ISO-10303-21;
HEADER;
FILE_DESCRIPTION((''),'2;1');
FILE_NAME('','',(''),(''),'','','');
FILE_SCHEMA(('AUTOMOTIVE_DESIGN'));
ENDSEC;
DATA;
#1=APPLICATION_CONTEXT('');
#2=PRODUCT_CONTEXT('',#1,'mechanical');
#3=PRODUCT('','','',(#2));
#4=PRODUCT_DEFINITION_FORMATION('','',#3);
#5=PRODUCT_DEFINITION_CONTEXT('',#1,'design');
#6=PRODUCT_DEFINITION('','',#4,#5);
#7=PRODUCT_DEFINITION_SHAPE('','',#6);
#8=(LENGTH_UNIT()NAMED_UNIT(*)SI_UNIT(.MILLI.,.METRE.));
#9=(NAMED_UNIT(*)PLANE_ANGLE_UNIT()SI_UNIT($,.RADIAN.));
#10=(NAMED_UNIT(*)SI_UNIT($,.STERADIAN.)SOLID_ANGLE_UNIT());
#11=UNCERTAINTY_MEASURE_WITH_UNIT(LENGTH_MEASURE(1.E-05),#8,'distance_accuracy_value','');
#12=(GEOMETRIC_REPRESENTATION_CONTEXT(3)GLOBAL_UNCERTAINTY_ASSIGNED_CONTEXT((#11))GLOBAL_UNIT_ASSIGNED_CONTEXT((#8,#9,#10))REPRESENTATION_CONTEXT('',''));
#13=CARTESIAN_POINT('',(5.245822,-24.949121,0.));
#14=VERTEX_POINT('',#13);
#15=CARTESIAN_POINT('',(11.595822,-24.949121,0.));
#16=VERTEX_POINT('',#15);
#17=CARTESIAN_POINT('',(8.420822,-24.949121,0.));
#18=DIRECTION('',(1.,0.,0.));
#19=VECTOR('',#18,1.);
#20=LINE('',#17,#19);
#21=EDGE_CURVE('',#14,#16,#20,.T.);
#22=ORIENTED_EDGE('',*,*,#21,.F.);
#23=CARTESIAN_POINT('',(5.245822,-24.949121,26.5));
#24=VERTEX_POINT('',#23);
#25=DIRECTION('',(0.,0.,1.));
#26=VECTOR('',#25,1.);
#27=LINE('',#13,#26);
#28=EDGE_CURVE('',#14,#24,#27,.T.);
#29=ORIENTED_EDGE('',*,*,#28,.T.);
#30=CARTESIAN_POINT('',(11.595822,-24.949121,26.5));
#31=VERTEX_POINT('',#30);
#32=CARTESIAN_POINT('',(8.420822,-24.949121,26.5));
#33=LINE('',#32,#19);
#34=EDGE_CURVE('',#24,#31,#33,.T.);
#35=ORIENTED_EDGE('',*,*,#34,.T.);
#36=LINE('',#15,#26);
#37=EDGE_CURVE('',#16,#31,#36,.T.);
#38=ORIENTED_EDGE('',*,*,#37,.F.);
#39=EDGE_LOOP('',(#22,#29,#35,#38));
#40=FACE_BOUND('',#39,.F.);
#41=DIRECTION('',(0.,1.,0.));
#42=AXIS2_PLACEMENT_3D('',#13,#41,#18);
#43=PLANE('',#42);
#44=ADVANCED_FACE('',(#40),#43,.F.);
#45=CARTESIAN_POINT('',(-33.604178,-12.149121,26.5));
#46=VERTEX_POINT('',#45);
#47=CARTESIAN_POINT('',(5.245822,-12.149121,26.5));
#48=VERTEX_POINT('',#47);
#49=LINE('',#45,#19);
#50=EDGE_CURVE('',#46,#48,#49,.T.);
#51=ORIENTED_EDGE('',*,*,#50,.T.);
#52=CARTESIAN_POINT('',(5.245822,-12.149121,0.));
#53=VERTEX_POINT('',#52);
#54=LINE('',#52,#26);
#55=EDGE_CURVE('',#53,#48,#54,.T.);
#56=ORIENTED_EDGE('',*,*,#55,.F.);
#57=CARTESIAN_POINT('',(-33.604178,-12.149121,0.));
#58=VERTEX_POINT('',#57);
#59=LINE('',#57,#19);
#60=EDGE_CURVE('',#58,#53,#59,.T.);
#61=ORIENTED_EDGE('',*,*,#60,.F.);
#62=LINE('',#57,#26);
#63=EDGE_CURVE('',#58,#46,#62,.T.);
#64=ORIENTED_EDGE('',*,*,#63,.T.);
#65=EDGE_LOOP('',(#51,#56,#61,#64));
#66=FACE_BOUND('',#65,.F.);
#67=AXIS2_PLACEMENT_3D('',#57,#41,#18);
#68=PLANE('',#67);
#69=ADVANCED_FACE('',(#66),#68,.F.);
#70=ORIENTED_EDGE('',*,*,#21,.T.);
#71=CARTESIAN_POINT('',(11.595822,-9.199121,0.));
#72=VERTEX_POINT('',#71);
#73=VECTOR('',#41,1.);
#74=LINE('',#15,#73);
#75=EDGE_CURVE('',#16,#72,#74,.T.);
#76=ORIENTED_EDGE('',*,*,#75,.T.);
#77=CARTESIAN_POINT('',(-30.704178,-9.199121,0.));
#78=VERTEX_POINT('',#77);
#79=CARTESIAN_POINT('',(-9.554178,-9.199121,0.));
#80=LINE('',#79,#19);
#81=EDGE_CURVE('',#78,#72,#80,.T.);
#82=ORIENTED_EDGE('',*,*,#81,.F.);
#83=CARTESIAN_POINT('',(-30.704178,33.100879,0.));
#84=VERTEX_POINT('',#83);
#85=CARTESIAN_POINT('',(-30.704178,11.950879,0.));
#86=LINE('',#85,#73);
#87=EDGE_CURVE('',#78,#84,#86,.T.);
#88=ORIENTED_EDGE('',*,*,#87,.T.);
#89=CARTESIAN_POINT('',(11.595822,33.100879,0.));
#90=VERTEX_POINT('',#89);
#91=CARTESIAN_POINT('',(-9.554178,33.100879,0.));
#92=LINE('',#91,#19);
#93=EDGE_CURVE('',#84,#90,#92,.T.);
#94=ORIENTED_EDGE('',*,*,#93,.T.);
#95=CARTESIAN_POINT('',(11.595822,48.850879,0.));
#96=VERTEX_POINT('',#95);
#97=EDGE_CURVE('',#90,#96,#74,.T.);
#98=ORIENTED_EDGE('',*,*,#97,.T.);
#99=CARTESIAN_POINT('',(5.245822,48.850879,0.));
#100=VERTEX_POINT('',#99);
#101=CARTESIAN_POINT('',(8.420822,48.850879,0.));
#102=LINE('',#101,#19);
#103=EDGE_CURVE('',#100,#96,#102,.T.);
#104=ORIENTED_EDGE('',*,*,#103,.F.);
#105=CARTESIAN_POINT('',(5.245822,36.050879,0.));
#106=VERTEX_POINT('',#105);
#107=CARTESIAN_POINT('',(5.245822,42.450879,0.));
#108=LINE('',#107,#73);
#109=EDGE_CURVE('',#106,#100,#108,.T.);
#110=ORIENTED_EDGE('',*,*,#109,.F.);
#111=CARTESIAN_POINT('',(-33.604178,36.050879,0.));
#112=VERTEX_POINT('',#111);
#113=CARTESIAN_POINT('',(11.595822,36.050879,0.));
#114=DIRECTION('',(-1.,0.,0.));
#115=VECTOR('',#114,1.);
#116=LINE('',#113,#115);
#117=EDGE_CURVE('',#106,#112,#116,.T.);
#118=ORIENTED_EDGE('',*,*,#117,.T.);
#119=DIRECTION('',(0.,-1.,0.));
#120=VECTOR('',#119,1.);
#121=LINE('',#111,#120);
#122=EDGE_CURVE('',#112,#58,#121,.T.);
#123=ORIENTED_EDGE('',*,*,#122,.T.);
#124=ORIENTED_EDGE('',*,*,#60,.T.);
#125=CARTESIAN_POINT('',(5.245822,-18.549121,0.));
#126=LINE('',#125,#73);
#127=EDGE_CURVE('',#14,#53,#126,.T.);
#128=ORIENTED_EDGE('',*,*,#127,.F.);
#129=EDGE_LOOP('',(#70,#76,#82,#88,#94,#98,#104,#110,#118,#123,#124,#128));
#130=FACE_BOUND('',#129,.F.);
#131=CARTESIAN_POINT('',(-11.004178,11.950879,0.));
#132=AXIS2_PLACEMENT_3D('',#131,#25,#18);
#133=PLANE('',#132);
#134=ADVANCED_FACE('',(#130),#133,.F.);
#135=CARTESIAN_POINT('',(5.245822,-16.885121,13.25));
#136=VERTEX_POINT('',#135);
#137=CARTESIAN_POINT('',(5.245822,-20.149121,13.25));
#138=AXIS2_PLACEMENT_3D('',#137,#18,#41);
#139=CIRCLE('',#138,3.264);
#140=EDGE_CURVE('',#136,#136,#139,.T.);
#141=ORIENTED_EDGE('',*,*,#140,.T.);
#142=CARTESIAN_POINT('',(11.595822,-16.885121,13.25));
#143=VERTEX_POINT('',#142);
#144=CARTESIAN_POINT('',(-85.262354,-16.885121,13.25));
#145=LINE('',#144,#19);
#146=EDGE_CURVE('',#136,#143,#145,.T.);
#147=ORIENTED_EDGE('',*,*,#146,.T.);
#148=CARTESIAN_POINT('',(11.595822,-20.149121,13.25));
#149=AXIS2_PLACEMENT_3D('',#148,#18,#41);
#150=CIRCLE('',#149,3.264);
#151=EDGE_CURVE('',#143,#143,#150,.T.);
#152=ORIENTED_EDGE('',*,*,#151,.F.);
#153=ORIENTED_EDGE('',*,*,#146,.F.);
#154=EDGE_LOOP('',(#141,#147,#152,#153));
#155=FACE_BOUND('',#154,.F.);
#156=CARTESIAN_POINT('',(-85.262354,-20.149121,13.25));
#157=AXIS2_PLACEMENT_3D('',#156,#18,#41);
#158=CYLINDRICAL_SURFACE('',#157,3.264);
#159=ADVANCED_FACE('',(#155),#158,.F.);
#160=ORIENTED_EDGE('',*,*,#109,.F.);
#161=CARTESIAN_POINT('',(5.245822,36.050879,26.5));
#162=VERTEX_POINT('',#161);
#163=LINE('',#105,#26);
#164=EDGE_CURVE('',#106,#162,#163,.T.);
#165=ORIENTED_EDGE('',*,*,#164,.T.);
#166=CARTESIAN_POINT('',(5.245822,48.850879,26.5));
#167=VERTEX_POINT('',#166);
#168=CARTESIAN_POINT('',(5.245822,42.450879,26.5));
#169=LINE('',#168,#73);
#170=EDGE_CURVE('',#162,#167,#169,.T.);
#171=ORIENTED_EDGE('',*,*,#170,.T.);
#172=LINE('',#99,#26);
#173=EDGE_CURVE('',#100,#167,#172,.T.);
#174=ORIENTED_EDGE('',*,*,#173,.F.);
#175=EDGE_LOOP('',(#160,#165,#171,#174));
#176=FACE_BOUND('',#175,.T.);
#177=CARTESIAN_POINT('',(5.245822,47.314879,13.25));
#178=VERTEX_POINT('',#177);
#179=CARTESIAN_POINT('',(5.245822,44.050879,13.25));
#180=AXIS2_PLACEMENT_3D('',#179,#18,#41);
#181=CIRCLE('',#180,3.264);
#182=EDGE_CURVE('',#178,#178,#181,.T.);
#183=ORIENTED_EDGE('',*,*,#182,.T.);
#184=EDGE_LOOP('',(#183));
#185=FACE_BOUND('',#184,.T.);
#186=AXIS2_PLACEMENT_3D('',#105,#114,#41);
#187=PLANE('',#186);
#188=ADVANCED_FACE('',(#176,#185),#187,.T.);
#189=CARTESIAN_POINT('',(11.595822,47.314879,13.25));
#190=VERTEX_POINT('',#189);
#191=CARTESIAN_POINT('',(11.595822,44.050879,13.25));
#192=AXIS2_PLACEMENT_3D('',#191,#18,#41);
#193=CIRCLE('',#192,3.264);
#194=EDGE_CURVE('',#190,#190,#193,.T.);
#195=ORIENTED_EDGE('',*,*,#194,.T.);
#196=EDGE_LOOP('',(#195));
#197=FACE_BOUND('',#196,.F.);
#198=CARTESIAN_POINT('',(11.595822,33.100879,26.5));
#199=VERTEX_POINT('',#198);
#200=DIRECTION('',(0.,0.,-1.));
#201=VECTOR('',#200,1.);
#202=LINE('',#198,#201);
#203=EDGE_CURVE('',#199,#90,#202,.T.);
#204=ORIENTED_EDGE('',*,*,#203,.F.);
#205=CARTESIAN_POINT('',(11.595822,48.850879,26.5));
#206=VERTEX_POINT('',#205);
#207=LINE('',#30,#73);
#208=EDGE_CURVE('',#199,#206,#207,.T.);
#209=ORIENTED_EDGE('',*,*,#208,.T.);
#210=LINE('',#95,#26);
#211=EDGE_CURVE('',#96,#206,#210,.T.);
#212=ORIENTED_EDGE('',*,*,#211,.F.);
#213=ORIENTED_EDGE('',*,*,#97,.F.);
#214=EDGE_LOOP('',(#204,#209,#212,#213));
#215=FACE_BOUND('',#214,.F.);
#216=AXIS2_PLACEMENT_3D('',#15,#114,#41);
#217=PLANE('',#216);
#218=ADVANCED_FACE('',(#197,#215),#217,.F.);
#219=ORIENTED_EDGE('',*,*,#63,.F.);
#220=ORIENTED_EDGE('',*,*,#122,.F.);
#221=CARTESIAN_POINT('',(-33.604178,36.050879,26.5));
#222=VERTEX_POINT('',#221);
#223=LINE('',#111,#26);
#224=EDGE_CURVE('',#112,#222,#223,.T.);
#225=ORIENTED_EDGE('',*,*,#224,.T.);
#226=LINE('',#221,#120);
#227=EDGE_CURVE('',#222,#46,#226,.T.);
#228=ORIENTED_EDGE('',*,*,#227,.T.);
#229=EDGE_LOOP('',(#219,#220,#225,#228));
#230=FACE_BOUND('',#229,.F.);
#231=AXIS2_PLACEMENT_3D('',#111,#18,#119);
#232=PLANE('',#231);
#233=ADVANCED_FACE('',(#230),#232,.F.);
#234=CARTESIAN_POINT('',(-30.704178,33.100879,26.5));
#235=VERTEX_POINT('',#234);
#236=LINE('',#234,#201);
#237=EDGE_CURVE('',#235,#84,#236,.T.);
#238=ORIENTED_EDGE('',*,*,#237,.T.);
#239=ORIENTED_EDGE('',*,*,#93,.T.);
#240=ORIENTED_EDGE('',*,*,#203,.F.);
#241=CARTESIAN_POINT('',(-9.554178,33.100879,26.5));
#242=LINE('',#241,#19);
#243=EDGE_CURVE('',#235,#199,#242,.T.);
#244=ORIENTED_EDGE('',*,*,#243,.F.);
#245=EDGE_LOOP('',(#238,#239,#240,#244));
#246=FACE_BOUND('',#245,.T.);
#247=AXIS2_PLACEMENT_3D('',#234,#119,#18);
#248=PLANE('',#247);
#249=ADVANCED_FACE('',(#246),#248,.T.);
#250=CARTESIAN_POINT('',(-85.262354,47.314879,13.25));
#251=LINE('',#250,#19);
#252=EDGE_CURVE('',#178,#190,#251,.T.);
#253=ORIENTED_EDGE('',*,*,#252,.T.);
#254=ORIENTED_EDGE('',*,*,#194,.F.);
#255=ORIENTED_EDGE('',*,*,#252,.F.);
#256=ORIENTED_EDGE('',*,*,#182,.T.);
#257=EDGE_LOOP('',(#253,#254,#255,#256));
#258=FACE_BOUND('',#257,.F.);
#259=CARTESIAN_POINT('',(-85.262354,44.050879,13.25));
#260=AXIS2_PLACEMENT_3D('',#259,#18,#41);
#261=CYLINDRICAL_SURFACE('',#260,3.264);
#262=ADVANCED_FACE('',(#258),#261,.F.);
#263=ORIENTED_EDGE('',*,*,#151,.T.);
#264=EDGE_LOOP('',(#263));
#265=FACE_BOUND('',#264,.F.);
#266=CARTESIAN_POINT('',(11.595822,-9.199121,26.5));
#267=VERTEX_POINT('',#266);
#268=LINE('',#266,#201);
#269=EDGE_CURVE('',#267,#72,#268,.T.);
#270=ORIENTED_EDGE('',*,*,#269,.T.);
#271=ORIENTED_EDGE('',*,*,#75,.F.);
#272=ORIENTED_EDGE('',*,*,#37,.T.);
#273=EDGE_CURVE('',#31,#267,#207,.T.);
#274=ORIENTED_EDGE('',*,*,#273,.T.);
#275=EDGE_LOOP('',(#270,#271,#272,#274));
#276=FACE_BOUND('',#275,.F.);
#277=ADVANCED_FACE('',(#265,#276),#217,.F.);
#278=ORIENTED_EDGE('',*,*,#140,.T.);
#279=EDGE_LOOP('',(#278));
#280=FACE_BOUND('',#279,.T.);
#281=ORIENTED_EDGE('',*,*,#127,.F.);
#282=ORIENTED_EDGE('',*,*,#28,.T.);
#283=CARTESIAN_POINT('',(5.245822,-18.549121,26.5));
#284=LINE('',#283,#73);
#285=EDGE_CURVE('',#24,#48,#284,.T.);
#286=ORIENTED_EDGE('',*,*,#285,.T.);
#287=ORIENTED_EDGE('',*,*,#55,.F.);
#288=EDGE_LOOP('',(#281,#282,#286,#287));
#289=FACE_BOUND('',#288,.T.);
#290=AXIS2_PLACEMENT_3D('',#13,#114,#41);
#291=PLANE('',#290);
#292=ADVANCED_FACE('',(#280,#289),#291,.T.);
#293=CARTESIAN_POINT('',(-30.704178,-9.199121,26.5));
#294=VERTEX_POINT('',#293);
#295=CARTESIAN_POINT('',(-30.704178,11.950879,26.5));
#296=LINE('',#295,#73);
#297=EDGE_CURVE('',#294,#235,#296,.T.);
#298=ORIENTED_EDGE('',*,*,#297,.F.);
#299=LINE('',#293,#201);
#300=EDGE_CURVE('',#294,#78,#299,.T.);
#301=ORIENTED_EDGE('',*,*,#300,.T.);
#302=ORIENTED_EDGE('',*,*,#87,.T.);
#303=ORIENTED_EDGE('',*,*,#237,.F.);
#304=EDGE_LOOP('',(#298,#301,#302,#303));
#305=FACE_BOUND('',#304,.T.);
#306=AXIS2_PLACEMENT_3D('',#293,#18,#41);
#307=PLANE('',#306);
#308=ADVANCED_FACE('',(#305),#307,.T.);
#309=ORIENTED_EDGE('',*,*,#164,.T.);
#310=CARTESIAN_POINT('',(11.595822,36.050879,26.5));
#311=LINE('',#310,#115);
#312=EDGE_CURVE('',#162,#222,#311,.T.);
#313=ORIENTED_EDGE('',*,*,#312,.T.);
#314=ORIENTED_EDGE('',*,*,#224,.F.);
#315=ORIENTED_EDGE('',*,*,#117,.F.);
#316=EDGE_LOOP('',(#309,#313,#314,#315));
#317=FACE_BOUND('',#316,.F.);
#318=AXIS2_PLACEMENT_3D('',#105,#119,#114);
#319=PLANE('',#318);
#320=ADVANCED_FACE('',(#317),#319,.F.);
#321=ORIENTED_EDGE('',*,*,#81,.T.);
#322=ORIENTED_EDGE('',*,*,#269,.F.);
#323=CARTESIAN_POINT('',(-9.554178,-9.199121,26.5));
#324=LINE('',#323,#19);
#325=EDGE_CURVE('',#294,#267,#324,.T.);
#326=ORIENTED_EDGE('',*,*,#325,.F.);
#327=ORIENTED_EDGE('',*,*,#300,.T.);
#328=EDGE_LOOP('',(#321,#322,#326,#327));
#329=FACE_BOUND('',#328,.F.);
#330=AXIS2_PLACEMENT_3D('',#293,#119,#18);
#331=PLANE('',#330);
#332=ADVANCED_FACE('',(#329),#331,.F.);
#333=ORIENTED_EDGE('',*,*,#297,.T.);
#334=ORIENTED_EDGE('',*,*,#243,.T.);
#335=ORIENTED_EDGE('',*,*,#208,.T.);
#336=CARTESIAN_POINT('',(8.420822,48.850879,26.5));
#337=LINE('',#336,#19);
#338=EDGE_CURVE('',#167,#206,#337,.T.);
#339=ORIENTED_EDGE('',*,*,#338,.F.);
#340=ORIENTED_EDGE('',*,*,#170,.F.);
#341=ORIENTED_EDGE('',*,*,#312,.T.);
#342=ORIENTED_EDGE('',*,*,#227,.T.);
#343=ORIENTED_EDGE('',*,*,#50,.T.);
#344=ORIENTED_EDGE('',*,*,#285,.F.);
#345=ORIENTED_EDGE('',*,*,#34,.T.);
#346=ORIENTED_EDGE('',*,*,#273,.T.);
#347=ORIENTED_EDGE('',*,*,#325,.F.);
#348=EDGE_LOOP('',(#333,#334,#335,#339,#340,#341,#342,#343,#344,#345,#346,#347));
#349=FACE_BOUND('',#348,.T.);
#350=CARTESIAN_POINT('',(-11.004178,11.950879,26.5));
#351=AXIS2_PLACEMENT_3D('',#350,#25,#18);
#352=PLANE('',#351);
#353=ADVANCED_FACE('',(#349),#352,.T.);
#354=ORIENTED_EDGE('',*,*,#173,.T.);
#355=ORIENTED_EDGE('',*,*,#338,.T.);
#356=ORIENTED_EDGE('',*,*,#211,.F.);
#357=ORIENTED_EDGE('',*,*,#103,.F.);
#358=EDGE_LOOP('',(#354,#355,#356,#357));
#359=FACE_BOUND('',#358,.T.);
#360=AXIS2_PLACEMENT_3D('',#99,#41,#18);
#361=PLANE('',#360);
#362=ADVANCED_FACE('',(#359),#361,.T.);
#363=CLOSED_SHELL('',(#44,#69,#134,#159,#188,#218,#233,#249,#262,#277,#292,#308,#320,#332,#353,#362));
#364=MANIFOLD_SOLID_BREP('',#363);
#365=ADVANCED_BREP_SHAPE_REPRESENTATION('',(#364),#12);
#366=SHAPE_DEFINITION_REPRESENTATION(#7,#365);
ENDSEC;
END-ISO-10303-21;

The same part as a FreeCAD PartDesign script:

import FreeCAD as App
import Part
import Sketcher

V = App.Vector

doc = App.newDocument("Part")
params = doc.addObject("Spreadsheet::Sheet", "Params")
for row, (alias, value) in enumerate([
    ("sketch1_height", "48.2 mm"),
    ("sketch1_height2", "12.8 mm"),
    ("sketch1_width", "38.85 mm"),
    ("sketch1_width2", "6.35 mm"),
    ("pad1_length", "26.5 mm"),
    ("hole_diameter", "6.528 mm"),
    ("sketch3_width", "42.3 mm"),
], start=1):
    params.set(f"A{row}", alias)
    params.set(f"B{row}", "=" + value)
    params.setAlias(f"B{row}", alias)

body = doc.addObject("PartDesign::Body", "Body")

# Sketch on XY plane
sketch1 = body.newObject("Sketcher::SketchObject", "Sketch")
sketch1.AttachmentSupport = (doc.getObject("XY_Plane"), [""])
sketch1.MapMode = "FlatFace"
sketch1.addGeometry(Part.LineSegment(V(-34, 36, 0), V(-34, -12, 0)), False)
sketch1.addGeometry(Part.LineSegment(V(-34, -12, 0), V(5, -12, 0)), False)
sketch1.addGeometry(Part.LineSegment(V(5, -12, 0), V(5, -25, 0)), False)
sketch1.addGeometry(Part.LineSegment(V(5, -25, 0), V(12, -25, 0)), False)
sketch1.addGeometry(Part.LineSegment(V(12, -25, 0), V(12, 49, 0)), False)
sketch1.addGeometry(Part.LineSegment(V(12, 49, 0), V(5, 49, 0)), False)
sketch1.addGeometry(Part.LineSegment(V(5, 49, 0), V(5, 36, 0)), False)
sketch1.addGeometry(Part.LineSegment(V(5, 36, 0), V(-34, 36, 0)), False)
sketch1.addConstraint(Sketcher.Constraint("Coincident", 0, 2, 1, 1))
sketch1.addConstraint(Sketcher.Constraint("Coincident", 1, 2, 2, 1))
sketch1.addConstraint(Sketcher.Constraint("Coincident", 2, 2, 3, 1))
sketch1.addConstraint(Sketcher.Constraint("Coincident", 3, 2, 4, 1))
sketch1.addConstraint(Sketcher.Constraint("Coincident", 4, 2, 5, 1))
sketch1.addConstraint(Sketcher.Constraint("Coincident", 5, 2, 6, 1))
sketch1.addConstraint(Sketcher.Constraint("Coincident", 6, 2, 7, 1))
sketch1.addConstraint(Sketcher.Constraint("Coincident", 7, 2, 0, 1))
sketch1.addConstraint(Sketcher.Constraint("Vertical", 0))
sketch1.addConstraint(Sketcher.Constraint("Horizontal", 1))
sketch1.addConstraint(Sketcher.Constraint("Vertical", 2))
sketch1.addConstraint(Sketcher.Constraint("Horizontal", 3))
sketch1.addConstraint(Sketcher.Constraint("Vertical", 4))
sketch1.addConstraint(Sketcher.Constraint("Horizontal", 5))
sketch1.addConstraint(Sketcher.Constraint("Vertical", 6))
sketch1.addConstraint(Sketcher.Constraint("Horizontal", 7))
sketch1.addConstraint(Sketcher.Constraint("Vertical", 2, 2, 5, 2))
sketch1.addConstraint(Sketcher.Constraint("Equal", 2, 6))
sketch1.addConstraint(Sketcher.Constraint("DistanceY", 0, 2, 0, 1, 48.2))
sketch1.addConstraint(Sketcher.Constraint("DistanceY", 2, 2, 2, 1, 12.8))
sketch1.addConstraint(Sketcher.Constraint("DistanceX", 1, 1, 1, 2, 38.85))
sketch1.addConstraint(Sketcher.Constraint("DistanceX", 3, 1, 3, 2, 6.35))
sketch1.addConstraint(Sketcher.Constraint("DistanceY", 0, 2, -1, 1, 12.149121))
sketch1.addConstraint(Sketcher.Constraint("DistanceX", 0, 2, -1, 1, 33.604178))
sketch1.setExpression("Constraints[18]", "Params.sketch1_height")
sketch1.setExpression("Constraints[19]", "Params.sketch1_height2")
sketch1.setExpression("Constraints[20]", "Params.sketch1_width")
sketch1.setExpression("Constraints[21]", "Params.sketch1_width2")
pad1 = body.newObject("PartDesign::Pad", "Pad")
pad1.Profile = sketch1
pad1.setExpression("Length", "Params.pad1_length")

# Sketch on YZ plane
sketch2 = body.newObject("Sketcher::SketchObject", "Sketch001")
sketch2.AttachmentSupport = (doc.getObject("YZ_Plane"), [""])
sketch2.MapMode = "FlatFace"
sketch2.AttachmentOffset = App.Placement(V(0, 0, 5.245822), App.Rotation())
sketch2.addGeometry(Part.Circle(V(44.1, 13.2, 0), V(0, 0, 1), 3.3), False)
sketch2.addGeometry(Part.Circle(V(-20.1, 13.2, 0), V(0, 0, 1), 3.3), False)
sketch2.addConstraint(Sketcher.Constraint("Equal", 0, 1))
sketch2.addConstraint(Sketcher.Constraint("Horizontal", 0, 3, 1, 3))
sketch2.addConstraint(Sketcher.Constraint("Diameter", 0, 6.528))
sketch2.addConstraint(Sketcher.Constraint("DistanceX", 1, 3, 0, 3, 64.2))
sketch2.addConstraint(Sketcher.Constraint("DistanceY", -1, 1, 0, 3, 13.25))
sketch2.addConstraint(Sketcher.Constraint("DistanceX", -1, 1, 0, 3, 44.050879))
doc.recompute()
hole = body.newObject("PartDesign::Hole", "Hole")
hole.Profile = sketch2
hole.ThreadType = "None"
hole.setExpression("Diameter", "Params.hole_diameter")
hole.DepthType = "ThroughAll"
hole.Reversed = True

# Sketch on XY plane
sketch3 = body.newObject("Sketcher::SketchObject", "Sketch002")
sketch3.AttachmentSupport = (doc.getObject("XY_Plane"), [""])
sketch3.MapMode = "FlatFace"
sketch3.AttachmentOffset = App.Placement(V(0, 0, 26.5), App.Rotation())
sketch3.addGeometry(Part.LineSegment(V(-31, 33, 0), V(-31, -9, 0)), False)
sketch3.addGeometry(Part.LineSegment(V(-31, -9, 0), V(12, -9, 0)), False)
sketch3.addGeometry(Part.LineSegment(V(12, -9, 0), V(12, 33, 0)), False)
sketch3.addGeometry(Part.LineSegment(V(12, 33, 0), V(-31, 33, 0)), False)
sketch3.addConstraint(Sketcher.Constraint("Coincident", 0, 2, 1, 1))
sketch3.addConstraint(Sketcher.Constraint("Coincident", 1, 2, 2, 1))
sketch3.addConstraint(Sketcher.Constraint("Coincident", 2, 2, 3, 1))
sketch3.addConstraint(Sketcher.Constraint("Coincident", 3, 2, 0, 1))
sketch3.addConstraint(Sketcher.Constraint("Vertical", 0))
sketch3.addConstraint(Sketcher.Constraint("Horizontal", 1))
sketch3.addConstraint(Sketcher.Constraint("Vertical", 2))
sketch3.addConstraint(Sketcher.Constraint("Horizontal", 3))
sketch3.addConstraint(Sketcher.Constraint("Equal", 3, 0))
sketch3.addConstraint(Sketcher.Constraint("DistanceX", 1, 1, 1, 2, 42.3))
sketch3.addConstraint(Sketcher.Constraint("DistanceY", 0, 2, -1, 1, 9.199121))
sketch3.addConstraint(Sketcher.Constraint("DistanceX", 0, 2, -1, 1, 30.704178))
sketch3.setExpression("Constraints[9]", "Params.sketch3_width")
pocket1 = body.newObject("PartDesign::Pocket", "Pocket")
pocket1.Profile = sketch3
pocket1.Type = "ThroughAll"

doc.recompute()
